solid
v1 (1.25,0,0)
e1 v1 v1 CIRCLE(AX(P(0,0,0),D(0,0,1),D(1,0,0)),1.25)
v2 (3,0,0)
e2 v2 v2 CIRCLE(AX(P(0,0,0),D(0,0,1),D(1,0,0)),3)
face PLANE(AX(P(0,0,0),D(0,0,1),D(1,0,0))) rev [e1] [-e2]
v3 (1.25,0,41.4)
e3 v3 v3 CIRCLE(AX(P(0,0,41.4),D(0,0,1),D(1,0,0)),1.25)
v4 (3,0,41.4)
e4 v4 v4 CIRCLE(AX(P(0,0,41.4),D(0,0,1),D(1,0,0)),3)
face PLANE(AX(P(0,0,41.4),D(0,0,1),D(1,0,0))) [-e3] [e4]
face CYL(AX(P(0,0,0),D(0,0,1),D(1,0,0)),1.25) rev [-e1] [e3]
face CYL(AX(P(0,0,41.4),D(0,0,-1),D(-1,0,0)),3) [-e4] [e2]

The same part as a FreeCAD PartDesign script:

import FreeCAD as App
import Part
import Sketcher

V = App.Vector

doc = App.newDocument("Part")
body = doc.addObject("PartDesign::Body", "Body")

# Sketch on XY plane
sketch1 = body.newObject("Sketcher::SketchObject", "Sketch")
sketch1.AttachmentSupport = (doc.getObject("XY_Plane"), [""])
sketch1.MapMode = "FlatFace"
sketch1.addGeometry(Part.Circle(V(0, 0, 0), V(0, 0, 1), 3), False)
sketch1.addConstraint(Sketcher.Constraint("Coincident", 0, 3, -1, 1))
sketch1.addConstraint(Sketcher.Constraint("Diameter", 0, 6.0))
pad1 = body.newObject("PartDesign::Pad", "Pad")
pad1.Profile = sketch1
pad1.Length = 41.4

# Sketch on XY plane
sketch2 = body.newObject("Sketcher::SketchObject", "Sketch001")
sketch2.AttachmentSupport = (doc.getObject("XY_Plane"), [""])
sketch2.MapMode = "FlatFace"
sketch2.AttachmentOffset = App.Placement(V(0, 0, 41.4), App.Rotation())
sketch2.addGeometry(Part.Circle(V(0, 0, 0), V(0, 0, 1), 1.2), False)
sketch2.addConstraint(Sketcher.Constraint("Coincident", 0, 3, -1, 1))
sketch2.addConstraint(Sketcher.Constraint("Diameter", 0, 2.5))
pocket1 = body.newObject("PartDesign::Pocket", "Pocket")
pocket1.Profile = sketch2
pocket1.Length = 41.4

doc.recompute()
